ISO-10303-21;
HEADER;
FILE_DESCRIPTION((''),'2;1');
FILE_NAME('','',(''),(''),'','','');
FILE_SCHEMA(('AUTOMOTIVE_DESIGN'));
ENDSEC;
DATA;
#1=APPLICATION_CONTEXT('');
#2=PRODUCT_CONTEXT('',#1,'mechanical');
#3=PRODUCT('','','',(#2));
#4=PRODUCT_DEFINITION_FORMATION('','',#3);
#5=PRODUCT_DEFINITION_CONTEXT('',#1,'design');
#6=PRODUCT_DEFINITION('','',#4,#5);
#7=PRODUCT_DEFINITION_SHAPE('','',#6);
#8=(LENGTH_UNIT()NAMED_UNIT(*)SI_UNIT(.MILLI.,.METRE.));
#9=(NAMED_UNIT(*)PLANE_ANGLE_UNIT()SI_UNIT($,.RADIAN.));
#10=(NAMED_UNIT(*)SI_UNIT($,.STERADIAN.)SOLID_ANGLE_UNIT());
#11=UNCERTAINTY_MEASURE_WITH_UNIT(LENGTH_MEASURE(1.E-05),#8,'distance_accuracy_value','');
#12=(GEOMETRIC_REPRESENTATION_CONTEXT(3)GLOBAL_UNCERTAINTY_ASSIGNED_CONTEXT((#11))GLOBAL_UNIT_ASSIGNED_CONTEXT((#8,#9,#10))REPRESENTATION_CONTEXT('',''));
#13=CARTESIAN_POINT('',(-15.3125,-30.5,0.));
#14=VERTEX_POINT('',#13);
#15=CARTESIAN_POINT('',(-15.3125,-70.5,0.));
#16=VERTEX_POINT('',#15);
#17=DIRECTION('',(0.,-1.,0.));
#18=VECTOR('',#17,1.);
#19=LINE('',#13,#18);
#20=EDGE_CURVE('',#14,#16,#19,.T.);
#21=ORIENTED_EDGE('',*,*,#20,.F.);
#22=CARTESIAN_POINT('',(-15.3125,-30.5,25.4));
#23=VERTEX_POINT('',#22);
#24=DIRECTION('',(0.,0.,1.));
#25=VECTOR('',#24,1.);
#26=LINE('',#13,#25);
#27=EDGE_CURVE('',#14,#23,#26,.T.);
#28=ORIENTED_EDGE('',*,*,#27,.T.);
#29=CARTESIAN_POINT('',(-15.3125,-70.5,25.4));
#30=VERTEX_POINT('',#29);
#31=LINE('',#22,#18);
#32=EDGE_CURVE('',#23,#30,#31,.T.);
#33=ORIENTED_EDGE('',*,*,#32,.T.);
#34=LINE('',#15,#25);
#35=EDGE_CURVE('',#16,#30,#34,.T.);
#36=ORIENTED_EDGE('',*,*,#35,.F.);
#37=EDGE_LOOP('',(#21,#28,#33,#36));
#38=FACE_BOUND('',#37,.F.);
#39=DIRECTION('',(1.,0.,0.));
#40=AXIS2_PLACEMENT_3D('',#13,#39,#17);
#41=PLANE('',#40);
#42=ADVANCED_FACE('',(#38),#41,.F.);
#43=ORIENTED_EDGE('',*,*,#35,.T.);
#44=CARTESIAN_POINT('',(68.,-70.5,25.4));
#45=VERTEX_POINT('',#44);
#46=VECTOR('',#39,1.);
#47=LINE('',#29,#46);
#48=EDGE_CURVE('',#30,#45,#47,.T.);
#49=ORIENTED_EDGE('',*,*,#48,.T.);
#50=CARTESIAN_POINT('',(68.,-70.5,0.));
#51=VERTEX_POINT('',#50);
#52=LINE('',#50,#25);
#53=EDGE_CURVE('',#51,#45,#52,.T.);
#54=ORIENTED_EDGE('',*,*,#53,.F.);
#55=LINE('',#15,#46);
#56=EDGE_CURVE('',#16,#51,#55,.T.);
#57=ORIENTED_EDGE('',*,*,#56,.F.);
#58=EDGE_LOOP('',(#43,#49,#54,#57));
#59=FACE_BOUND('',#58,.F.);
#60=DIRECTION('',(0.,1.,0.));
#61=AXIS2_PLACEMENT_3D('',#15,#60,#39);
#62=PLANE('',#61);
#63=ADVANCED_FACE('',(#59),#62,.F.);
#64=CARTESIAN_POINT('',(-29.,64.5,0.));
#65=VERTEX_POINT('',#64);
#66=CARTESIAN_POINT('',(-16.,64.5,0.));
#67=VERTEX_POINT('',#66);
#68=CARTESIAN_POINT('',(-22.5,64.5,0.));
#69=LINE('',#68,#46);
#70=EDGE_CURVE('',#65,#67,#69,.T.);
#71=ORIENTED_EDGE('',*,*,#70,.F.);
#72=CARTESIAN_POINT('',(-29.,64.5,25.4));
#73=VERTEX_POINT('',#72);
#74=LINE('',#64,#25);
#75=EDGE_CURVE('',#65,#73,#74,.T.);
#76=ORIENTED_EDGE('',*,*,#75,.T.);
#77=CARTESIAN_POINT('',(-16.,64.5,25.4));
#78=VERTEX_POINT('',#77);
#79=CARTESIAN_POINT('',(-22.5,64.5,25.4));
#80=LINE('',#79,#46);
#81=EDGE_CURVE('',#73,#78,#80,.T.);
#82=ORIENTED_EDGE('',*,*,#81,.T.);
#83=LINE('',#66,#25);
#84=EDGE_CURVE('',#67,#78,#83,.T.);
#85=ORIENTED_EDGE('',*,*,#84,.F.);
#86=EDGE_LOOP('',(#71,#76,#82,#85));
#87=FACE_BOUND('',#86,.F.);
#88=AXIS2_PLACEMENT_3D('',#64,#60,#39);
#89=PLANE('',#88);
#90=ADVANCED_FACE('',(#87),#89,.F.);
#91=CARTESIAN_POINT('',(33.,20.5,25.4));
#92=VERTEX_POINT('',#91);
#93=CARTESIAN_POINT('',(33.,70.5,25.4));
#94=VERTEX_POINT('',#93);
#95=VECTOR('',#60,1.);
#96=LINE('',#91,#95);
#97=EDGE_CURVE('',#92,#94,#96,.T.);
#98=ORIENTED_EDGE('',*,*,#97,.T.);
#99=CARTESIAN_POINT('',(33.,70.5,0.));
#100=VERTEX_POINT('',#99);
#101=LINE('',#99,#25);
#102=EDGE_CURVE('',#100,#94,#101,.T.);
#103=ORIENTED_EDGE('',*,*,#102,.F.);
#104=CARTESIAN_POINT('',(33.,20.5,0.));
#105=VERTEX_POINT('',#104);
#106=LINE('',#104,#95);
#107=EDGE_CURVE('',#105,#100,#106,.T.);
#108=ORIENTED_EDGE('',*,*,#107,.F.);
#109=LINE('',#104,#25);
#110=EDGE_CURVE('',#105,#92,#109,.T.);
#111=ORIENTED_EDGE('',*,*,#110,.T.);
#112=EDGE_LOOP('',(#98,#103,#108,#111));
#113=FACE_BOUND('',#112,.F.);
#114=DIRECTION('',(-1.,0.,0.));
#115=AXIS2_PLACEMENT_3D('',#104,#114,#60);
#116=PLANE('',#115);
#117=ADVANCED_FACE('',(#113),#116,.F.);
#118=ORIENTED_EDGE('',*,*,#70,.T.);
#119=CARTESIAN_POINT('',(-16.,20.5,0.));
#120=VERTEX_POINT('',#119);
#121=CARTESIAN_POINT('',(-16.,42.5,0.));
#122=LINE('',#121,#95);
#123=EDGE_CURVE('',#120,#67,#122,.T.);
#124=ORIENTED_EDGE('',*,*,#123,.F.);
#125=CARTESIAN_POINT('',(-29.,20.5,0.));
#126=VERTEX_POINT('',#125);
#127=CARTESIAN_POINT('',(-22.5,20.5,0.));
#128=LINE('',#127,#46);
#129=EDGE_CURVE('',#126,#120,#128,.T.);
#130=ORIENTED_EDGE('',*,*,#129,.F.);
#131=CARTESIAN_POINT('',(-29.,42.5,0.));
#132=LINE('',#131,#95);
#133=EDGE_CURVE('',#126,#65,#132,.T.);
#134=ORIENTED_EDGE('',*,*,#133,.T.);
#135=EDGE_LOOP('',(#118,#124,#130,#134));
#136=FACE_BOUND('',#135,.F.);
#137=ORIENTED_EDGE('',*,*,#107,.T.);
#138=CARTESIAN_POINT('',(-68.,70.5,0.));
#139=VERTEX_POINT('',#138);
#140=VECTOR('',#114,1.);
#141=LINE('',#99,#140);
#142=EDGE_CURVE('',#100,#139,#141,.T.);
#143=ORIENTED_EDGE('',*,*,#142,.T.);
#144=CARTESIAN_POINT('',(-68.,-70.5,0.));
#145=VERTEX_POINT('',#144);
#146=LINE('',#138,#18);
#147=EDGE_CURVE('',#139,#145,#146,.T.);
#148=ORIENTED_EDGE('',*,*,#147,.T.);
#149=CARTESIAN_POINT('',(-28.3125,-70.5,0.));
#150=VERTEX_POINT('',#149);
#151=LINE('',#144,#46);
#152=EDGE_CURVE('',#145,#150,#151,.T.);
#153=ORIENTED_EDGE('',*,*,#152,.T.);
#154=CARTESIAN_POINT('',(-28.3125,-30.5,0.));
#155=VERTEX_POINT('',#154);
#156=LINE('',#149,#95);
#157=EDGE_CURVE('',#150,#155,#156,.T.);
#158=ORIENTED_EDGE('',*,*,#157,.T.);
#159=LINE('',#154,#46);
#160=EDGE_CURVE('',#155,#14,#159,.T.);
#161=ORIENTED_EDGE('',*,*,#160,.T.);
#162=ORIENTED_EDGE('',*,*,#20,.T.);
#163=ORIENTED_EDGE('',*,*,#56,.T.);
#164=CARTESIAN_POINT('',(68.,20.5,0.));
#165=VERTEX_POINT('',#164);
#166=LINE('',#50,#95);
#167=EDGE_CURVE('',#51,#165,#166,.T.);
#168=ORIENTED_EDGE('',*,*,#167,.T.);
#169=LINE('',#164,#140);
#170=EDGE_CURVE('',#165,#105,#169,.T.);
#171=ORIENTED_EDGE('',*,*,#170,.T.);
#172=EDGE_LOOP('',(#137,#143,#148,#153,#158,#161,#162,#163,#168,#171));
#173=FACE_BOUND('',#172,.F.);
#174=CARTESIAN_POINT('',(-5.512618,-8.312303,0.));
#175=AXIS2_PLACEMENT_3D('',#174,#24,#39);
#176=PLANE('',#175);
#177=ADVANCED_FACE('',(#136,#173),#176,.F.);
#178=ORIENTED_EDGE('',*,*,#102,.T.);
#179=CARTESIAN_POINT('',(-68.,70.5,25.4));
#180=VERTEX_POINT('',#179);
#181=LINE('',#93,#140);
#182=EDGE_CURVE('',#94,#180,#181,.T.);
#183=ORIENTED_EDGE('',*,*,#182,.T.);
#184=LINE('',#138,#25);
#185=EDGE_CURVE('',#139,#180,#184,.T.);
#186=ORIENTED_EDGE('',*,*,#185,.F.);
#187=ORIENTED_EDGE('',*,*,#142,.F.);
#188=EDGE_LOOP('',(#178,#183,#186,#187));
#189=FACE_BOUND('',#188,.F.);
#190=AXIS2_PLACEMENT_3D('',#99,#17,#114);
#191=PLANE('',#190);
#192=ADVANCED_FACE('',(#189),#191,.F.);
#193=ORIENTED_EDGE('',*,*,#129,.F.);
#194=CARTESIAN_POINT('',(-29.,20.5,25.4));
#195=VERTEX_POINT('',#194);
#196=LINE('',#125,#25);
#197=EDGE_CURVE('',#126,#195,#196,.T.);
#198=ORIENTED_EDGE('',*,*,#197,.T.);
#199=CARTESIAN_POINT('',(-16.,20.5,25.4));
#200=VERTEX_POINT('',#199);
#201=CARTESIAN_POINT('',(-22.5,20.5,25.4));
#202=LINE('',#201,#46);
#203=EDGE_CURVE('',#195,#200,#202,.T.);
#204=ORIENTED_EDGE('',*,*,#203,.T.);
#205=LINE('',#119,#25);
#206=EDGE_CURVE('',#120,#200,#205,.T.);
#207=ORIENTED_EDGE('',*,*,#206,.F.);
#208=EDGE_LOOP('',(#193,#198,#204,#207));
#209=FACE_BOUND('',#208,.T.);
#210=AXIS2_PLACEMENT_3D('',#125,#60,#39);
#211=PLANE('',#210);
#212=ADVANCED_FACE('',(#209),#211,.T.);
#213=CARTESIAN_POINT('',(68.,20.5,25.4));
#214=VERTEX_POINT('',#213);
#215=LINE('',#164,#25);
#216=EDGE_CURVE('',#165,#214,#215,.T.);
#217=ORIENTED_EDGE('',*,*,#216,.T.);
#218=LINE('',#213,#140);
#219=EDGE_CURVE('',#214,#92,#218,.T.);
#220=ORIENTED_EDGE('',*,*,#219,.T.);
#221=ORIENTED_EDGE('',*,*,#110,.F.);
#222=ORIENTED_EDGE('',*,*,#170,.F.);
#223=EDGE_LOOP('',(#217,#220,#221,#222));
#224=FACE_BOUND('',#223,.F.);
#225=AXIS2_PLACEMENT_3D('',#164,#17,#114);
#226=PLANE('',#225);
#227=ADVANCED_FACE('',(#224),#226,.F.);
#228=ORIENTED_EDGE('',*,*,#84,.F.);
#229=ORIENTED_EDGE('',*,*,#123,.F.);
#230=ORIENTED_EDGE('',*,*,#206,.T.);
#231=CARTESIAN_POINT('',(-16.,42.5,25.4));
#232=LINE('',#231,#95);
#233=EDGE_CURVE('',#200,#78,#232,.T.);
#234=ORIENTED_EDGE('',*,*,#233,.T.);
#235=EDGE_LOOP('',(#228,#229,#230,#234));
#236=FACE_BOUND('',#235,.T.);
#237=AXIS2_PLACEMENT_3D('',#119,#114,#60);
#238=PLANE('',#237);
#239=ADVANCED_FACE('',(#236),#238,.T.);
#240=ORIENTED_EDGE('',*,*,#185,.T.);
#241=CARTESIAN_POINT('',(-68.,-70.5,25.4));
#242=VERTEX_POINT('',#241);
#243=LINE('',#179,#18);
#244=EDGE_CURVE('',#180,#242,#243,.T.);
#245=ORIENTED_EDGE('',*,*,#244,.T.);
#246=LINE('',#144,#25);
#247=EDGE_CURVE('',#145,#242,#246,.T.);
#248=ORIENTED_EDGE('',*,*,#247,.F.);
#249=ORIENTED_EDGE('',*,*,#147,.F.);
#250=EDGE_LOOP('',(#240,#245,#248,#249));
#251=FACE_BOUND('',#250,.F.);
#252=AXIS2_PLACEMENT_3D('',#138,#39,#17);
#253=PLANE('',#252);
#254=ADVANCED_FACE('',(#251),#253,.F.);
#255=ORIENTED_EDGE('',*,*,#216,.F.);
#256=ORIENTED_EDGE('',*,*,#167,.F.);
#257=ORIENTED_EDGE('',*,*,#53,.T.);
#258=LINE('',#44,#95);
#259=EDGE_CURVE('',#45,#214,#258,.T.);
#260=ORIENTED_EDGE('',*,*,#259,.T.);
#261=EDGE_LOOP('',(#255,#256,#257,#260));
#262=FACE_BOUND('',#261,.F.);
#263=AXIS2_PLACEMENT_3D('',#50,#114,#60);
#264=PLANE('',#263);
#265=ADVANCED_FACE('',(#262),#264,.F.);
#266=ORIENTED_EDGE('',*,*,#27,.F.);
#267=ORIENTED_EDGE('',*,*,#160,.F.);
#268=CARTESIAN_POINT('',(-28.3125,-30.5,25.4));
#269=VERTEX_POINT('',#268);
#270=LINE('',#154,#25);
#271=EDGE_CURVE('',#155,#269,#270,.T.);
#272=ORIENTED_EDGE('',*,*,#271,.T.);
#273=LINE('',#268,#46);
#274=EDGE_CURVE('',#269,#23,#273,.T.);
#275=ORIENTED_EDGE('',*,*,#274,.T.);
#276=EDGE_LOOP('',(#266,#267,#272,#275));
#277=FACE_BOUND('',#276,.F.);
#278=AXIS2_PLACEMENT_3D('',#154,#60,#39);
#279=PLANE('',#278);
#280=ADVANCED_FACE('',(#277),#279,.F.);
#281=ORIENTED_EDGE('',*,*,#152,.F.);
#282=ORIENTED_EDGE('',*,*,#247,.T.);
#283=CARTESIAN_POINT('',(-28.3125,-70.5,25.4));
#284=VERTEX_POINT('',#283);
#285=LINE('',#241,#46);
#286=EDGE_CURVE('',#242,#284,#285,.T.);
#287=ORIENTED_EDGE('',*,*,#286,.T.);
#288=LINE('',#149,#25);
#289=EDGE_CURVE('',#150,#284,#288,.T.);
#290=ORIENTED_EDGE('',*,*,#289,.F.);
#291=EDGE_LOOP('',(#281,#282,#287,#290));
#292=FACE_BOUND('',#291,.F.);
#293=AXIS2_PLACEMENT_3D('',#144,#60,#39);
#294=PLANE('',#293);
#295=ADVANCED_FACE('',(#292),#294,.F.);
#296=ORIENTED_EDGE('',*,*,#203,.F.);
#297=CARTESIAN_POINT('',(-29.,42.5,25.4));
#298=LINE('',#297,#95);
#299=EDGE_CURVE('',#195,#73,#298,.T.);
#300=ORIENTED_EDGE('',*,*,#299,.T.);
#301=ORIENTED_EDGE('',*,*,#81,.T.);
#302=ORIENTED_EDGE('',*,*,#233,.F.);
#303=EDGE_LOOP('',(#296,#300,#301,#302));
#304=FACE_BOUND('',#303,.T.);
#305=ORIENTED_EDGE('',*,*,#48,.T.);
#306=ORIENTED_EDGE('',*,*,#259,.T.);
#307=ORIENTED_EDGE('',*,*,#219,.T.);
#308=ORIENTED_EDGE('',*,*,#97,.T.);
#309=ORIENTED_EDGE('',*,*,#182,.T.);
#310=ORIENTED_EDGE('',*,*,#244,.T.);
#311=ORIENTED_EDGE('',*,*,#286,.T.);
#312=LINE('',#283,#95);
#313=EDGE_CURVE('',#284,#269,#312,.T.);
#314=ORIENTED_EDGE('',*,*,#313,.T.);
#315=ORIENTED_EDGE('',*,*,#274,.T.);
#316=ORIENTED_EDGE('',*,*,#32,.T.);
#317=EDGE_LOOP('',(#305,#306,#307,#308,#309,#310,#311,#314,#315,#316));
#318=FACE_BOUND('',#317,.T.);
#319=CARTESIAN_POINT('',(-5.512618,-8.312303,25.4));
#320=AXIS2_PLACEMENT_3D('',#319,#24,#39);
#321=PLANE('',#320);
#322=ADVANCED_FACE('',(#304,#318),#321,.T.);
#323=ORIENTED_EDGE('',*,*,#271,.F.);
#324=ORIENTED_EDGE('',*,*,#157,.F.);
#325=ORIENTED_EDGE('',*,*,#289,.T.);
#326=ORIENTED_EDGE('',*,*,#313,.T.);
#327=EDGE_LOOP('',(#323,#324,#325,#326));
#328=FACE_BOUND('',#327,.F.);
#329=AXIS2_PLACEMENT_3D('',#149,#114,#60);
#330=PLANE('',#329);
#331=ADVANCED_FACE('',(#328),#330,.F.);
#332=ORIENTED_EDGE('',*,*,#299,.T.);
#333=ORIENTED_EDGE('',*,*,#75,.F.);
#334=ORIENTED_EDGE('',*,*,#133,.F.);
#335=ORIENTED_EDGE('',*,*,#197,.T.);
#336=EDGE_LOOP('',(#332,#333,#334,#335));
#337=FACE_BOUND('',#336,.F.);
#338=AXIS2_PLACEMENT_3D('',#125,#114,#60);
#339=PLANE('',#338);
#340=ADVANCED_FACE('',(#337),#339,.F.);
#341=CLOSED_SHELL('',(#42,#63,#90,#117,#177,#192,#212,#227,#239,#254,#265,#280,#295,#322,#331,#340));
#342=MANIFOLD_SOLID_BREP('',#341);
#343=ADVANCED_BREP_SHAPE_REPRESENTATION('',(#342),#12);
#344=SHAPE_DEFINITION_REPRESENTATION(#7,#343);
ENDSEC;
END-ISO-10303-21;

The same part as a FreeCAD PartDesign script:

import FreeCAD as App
import Part
import Sketcher

V = App.Vector


def add_polygon(sketch, points):
    """Adds a closed chain of lines whose ends are joined by coincident constraints."""
    first, n = sketch.GeometryCount, len(points)
    for a, b in zip(points, points[1:] + points[:1]):
        sketch.addGeometry(Part.LineSegment(App.Vector(*a, 0), App.Vector(*b, 0)), False)
    for i in range(n):
        sketch.addConstraint(Sketcher.Constraint("Coincident", first + i, 2, first + (i + 1) % n, 1))

doc = App.newDocument("Part")
body = doc.addObject("PartDesign::Body", "Body")

# Sketch on XY plane
sketch1 = body.newObject("Sketcher::SketchObject", "Sketch")
sketch1.AttachmentSupport = (doc.getObject("XY_Plane"), [""])
sketch1.MapMode = "FlatFace"
add_polygon(sketch1, [(33, 20.5), (33, 70.5), (-68, 70.5), (-68, -70.5), (-28.3125, -70.5), (-28.3125, -30.5), (-15.3125, -30.5), (-15.3125, -70.5), (68, -70.5), (68, 20.5)])  # lines 0-9
add_polygon(sketch1, [(-16, 20.5), (-29, 20.5), (-29, 64.5), (-16, 64.5)])  # lines 10-13
sketch1.addConstraint([
    Sketcher.Constraint("Vertical", 0),
    Sketcher.Constraint("Horizontal", 1),
    Sketcher.Constraint("Vertical", 2),
    Sketcher.Constraint("Horizontal", 3),
    Sketcher.Constraint("Vertical", 4),
    Sketcher.Constraint("Horizontal", 5),
    Sketcher.Constraint("Vertical", 6),
    Sketcher.Constraint("Horizontal", 7),
    Sketcher.Constraint("Vertical", 8),
    Sketcher.Constraint("Horizontal", 9),
    Sketcher.Constraint("Horizontal", 10),
    Sketcher.Constraint("Vertical", 11),
    Sketcher.Constraint("Horizontal", 12),
    Sketcher.Constraint("Vertical", 13),
    Sketcher.Constraint("Symmetric", 1, 2, 7, 2, -1, 1),
    Sketcher.Constraint("Horizontal", 3, 2, 6, 2),
    Sketcher.Constraint("Horizontal", 9, 2, 10, 2),
    Sketcher.Constraint("Equal", 5, 10),
    Sketcher.Constraint("DistanceX", 1, 2, 1, 1, 101.0),
    Sketcher.Constraint("DistanceX", 5, 1, 5, 2, 13.0),
    Sketcher.Constraint("DistanceX", 9, 2, 9, 1, 35.0),
    Sketcher.Constraint("DistanceY", 0, 1, 0, 2, 50.0),
    Sketcher.Constraint("DistanceY", 2, 2, 2, 1, 141.0),
    Sketcher.Constraint("DistanceY", 4, 1, 4, 2, 40.0),
    Sketcher.Constraint("DistanceY", 11, 1, 11, 2, 44.0),
    Sketcher.Constraint("DistanceX", 10, 2, -1, 1, 29.0),
    Sketcher.Constraint("DistanceX", 3, 1, 3, 2, 39.6875),
])
pad1 = body.newObject("PartDesign::Pad", "Pad")
pad1.Profile = sketch1
pad1.Length = 25.4

doc.recompute()
